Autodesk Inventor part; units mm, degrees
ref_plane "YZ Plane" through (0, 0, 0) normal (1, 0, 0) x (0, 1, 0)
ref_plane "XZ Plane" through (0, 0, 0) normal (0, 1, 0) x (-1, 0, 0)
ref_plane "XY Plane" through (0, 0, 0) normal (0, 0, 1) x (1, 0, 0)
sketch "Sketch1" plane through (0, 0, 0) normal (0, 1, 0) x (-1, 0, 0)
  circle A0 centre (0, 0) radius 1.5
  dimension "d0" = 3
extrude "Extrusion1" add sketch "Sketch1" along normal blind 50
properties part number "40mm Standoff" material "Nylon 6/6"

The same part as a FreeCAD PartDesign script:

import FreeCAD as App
import Part
import Sketcher
Q = App.Units.Quantity

doc = App.newDocument("Part")
body = doc.addObject("PartDesign::Body", "Body")

sketch1 = body.newObject("Sketcher::SketchObject", "Sketch")
sketch1.AttachmentSupport = (doc.getObject("XZ_Plane"), [""])
sketch1.MapMode = "FlatFace"
sketch1.addGeometry(Part.Circle(App.Vector(0, 0, 0), App.Vector(0, 0, 1), 1.5), False)
sketch1.addConstraint([
    Sketcher.Constraint("Coincident", 0, 3, -1, 1),
    Sketcher.Constraint("Diameter", 0, Q("3 mm")),
])
pad1 = body.newObject("PartDesign::Pad", "Pad")
pad1.Profile = sketch1
pad1.Length = 50
pad1.Reversed = True

doc.recompute()
